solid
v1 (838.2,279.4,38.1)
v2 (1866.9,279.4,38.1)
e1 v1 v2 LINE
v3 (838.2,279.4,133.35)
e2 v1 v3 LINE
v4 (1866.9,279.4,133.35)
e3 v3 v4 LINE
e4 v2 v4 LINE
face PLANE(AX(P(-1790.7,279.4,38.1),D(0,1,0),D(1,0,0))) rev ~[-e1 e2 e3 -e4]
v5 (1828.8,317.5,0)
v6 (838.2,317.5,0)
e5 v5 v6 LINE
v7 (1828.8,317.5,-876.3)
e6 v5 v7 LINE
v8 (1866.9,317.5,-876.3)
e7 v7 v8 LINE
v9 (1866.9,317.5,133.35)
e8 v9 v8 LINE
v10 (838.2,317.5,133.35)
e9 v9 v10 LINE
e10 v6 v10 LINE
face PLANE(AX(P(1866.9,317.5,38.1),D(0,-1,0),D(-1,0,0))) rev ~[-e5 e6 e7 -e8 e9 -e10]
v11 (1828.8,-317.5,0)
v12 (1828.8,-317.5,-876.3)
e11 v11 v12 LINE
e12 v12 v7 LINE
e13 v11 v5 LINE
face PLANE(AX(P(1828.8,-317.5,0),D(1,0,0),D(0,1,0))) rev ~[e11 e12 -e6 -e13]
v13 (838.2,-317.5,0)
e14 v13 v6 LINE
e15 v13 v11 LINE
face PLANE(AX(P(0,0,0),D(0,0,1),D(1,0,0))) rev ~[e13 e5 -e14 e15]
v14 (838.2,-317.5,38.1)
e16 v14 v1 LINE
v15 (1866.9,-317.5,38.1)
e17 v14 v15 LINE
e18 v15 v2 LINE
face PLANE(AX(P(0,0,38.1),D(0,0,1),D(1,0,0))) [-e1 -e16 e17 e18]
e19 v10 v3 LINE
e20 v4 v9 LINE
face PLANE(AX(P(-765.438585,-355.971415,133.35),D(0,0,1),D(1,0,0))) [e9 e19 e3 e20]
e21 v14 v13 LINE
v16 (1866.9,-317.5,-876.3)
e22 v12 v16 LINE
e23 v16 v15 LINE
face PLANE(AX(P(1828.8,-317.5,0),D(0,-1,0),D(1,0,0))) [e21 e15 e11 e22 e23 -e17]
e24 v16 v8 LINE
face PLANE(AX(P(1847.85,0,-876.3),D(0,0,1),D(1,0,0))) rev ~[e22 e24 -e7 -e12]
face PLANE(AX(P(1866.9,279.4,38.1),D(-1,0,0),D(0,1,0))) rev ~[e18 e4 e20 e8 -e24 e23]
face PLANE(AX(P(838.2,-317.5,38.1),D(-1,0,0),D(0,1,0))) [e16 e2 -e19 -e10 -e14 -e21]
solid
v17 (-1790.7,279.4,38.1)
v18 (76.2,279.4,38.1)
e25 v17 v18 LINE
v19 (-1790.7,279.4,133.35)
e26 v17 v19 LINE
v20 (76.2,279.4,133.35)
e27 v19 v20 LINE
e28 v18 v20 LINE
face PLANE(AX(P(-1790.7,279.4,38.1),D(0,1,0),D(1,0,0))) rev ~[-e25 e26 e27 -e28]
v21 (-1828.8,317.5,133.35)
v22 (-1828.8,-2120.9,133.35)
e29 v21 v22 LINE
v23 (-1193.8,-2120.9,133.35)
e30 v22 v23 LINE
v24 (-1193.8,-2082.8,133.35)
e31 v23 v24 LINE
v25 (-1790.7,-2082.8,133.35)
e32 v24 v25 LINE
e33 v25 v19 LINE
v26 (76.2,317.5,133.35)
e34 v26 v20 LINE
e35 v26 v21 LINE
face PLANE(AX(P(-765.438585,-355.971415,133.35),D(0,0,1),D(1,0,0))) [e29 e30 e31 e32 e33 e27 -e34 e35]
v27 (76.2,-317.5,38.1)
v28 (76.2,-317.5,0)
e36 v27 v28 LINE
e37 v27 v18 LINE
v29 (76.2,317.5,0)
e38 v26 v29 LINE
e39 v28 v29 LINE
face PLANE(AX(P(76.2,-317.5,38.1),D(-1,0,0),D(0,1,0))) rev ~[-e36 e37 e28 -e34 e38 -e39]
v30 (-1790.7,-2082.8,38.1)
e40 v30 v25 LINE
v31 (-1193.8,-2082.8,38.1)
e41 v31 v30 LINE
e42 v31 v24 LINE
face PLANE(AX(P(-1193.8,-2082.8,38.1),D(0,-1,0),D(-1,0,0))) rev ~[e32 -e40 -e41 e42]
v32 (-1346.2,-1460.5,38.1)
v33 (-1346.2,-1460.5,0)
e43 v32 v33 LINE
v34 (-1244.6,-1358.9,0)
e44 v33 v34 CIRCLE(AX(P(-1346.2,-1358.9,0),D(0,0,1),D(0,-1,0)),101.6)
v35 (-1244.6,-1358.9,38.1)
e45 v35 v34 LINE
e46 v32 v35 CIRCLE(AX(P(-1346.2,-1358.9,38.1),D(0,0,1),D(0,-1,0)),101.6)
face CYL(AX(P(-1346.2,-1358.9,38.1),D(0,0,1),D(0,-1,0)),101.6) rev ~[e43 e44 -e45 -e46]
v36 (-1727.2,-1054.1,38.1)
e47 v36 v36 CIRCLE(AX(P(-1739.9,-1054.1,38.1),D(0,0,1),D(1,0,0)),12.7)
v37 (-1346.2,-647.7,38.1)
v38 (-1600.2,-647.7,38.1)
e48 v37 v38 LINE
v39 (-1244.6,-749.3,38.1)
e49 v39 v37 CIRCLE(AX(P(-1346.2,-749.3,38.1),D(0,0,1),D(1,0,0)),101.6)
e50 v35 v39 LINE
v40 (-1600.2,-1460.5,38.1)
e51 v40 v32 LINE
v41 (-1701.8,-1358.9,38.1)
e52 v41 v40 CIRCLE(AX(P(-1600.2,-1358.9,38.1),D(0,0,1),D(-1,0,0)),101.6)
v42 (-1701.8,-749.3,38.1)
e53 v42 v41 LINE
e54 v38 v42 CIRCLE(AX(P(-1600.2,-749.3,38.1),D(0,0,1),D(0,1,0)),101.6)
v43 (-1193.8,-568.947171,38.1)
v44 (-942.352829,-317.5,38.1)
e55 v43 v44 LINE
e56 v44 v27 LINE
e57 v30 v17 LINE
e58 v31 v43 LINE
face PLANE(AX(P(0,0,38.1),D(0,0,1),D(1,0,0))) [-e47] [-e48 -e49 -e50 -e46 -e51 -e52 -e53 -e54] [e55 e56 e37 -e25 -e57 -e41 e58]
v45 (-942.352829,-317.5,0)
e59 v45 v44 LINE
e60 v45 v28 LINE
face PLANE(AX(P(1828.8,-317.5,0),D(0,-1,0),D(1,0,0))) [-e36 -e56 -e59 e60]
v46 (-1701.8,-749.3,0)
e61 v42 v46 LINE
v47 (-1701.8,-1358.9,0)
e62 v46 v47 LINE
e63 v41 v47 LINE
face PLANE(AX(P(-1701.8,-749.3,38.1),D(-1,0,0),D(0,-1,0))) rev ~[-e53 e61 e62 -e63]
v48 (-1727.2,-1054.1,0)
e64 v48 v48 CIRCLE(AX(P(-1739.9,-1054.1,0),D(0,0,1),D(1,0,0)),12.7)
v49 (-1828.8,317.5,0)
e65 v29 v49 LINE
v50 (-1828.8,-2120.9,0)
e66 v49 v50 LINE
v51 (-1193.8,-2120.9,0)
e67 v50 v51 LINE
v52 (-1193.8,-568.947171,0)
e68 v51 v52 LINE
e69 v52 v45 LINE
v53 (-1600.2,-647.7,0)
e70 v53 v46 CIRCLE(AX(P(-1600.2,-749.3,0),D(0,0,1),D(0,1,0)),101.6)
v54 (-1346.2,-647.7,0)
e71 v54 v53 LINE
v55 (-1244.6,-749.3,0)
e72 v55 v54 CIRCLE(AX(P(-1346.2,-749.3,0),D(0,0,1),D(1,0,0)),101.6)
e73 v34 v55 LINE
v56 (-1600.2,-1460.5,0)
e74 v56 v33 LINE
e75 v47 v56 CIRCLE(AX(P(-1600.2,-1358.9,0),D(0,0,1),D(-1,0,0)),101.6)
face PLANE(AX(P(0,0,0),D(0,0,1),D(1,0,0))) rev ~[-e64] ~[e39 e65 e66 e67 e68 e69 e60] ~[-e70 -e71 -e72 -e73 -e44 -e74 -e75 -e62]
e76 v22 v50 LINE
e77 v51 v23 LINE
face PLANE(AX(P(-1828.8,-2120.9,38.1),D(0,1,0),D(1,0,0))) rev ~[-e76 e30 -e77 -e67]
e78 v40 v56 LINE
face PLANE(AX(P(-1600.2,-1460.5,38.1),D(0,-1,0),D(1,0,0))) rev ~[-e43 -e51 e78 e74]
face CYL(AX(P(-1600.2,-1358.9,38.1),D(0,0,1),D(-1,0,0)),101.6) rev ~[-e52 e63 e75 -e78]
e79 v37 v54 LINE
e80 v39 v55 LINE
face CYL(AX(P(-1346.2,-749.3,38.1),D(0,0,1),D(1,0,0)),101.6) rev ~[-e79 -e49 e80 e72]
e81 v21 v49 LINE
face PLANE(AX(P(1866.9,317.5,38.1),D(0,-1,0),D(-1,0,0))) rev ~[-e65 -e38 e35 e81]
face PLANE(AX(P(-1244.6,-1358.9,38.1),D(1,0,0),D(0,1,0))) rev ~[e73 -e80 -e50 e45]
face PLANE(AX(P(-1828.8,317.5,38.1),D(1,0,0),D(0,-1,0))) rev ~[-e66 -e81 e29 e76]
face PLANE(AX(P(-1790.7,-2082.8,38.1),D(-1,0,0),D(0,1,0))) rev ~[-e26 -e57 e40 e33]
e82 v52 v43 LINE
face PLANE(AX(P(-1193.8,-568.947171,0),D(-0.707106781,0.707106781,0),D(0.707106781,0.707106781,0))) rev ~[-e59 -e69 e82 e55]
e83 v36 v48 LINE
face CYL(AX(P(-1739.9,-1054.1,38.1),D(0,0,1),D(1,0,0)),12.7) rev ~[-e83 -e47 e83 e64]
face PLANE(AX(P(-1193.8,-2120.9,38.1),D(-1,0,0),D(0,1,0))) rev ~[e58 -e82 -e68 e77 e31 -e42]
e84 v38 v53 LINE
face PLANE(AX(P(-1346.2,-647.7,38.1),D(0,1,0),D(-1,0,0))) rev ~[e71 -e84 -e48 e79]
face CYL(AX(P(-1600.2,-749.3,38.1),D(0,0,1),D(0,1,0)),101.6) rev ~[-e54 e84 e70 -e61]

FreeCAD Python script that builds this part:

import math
import FreeCAD as App
import Part
import Sketcher
Q = App.Units.Quantity


def add_polygon(sketch, points):
    """Adds a closed chain of lines whose ends are joined by coincident constraints."""
    first, n = sketch.GeometryCount, len(points)
    for a, b in zip(points, points[1:] + points[:1]):
        sketch.addGeometry(Part.LineSegment(App.Vector(*a, 0), App.Vector(*b, 0)), False)
    for i in range(n):
        sketch.addConstraint(Sketcher.Constraint("Coincident", first + i, 2, first + (i + 1) % n, 1))

doc = App.newDocument("Part")
body = doc.addObject("PartDesign::Body", "Body")
body.AllowCompound = True

# Sketch on XY plane
sketch1 = body.newObject("Sketcher::SketchObject", "Sketch")
sketch1.AttachmentSupport = (doc.getObject("XY_Plane"), [""])
sketch1.MapMode = "FlatFace"
add_polygon(sketch1, [(-1829, 318), (-1829, -2121), (-1194, -2121), (-1194, -569), (-942, -318), (1867, -318), (1867, 318)])  # lines 0-6
sketch1.addConstraint([
    Sketcher.Constraint("Vertical", 0),
    Sketcher.Constraint("Horizontal", 1),
    Sketcher.Constraint("Vertical", 2),
    Sketcher.Constraint("Horizontal", 4),
    Sketcher.Constraint("Vertical", 5),
    Sketcher.Constraint("Horizontal", 6),
    Sketcher.Constraint("Equal", 1, 5),
    Sketcher.Constraint("DistanceX", 1, 1, 1, 2, Q("25 in")),
    Sketcher.Constraint("DistanceY", 0, 2, 0, 1, Q("96 in")),
    Sketcher.Constraint("Distance", 3, Q("14 in")),
    Sketcher.Constraint("DistanceX", 6, 2, 6, 1, Q("145.5 in")),
    Sketcher.Constraint("DistanceX", 0, 2, -1, 1, Q("72 in")),
    Sketcher.Constraint("Angle", 3, Q("45 deg")),
    Sketcher.Constraint("DistanceY", 0, 2, -1, 1, Q("83.5 in")),
])
pad1 = body.newObject("PartDesign::Pad", "Pad")
pad1.Profile = sketch1
pad1.Length = Q("1.5 in")

# Sketch on XY plane
sketch2 = body.newObject("Sketcher::SketchObject", "Sketch001")
sketch2.AttachmentSupport = (doc.getObject("XY_Plane"), [""])
sketch2.MapMode = "FlatFace"
add_polygon(sketch2, [(1829, 318), (1829, -318), (1867, -318), (1867, 318)])  # lines 0-3
sketch2.addConstraint([
    Sketcher.Constraint("Vertical", 0),
    Sketcher.Constraint("Horizontal", 1),
    Sketcher.Constraint("Vertical", 2),
    Sketcher.Constraint("Horizontal", 3),
    Sketcher.Constraint("DistanceY", 0, 2, 0, 1, Q("25 in")),
    Sketcher.Constraint("DistanceX", 1, 1, 1, 2, Q("1.5 in")),
    Sketcher.Constraint("DistanceX", -1, 1, 0, 2, Q("72 in")),
    Sketcher.Constraint("DistanceY", 0, 2, -1, 1, Q("12.5 in")),
])
pad2 = body.newObject("PartDesign::Pad", "Pad001")
pad2.Profile = sketch2
pad2.Length = Q("34.5 in")
pad2.Reversed = True

# Sketch on XY plane
sketch3 = body.newObject("Sketcher::SketchObject", "Sketch002")
sketch3.AttachmentSupport = (doc.getObject("XY_Plane"), [""])
sketch3.MapMode = "FlatFace"
sketch3.AttachmentOffset = App.Placement(App.Vector(0, 0, 1.5 * 25.4), App.Rotation())
add_polygon(sketch3, [(-1829, -2121), (-1194, -2121), (-1194, -2083), (-1791, -2083), (-1791, 279), (1867, 279), (1867, 318), (-1829, 318)])  # lines 0-7
sketch3.addConstraint([
    Sketcher.Constraint("Horizontal", 0),
    Sketcher.Constraint("Vertical", 1),
    Sketcher.Constraint("Horizontal", 2),
    Sketcher.Constraint("Vertical", 3),
    Sketcher.Constraint("Horizontal", 4),
    Sketcher.Constraint("Vertical", 5),
    Sketcher.Constraint("Horizontal", 6),
    Sketcher.Constraint("Vertical", 7),
    Sketcher.Constraint("Equal", 1, 5),
    Sketcher.Constraint("DistanceX", 0, 1, 0, 2, Q("25 in")),
    Sketcher.Constraint("DistanceX", 4, 1, 4, 2, Q("144 in")),
    Sketcher.Constraint("DistanceY", 3, 1, 3, 2, Q("93 in")),
    Sketcher.Constraint("DistanceY", 7, 2, 7, 1, Q("96 in")),
    Sketcher.Constraint("DistanceX", 2, 2, 2, 1, Q("23.5 in")),
    Sketcher.Constraint("DistanceX", 0, 2, -1, 1, Q("47 in")),
    Sketcher.Constraint("DistanceY", 1, 2, -1, 1, Q("82 in")),
])
pad3 = body.newObject("PartDesign::Pad", "Pad002")
pad3.Profile = sketch3
pad3.Length = Q("3.75 in")

# Sketch on XY plane
sketch4 = body.newObject("Sketcher::SketchObject", "Sketch003")
sketch4.AttachmentSupport = (doc.getObject("XY_Plane"), [""])
sketch4.MapMode = "FlatFace"
sketch4.AttachmentOffset = App.Placement(App.Vector(0, 0, 1.5 * 25.4), App.Rotation())
add_polygon(sketch4, [(76, 490), (76, -318), (838, -318), (838, 490)])  # lines 0-3
sketch4.addConstraint([
    Sketcher.Constraint("Vertical", 0),
    Sketcher.Constraint("Horizontal", 1),
    Sketcher.Constraint("Vertical", 2),
    Sketcher.Constraint("Horizontal", 3),
    Sketcher.Constraint("DistanceX", 1, 1, 1, 2, Q("30 in")),
    Sketcher.Constraint("DistanceX", -1, 1, 0, 2, Q("3 in")),
    Sketcher.Constraint("DistanceY", 0, 2, -1, 1, Q("12.5 in")),
    Sketcher.Constraint("DistanceY", 0, 2, 0, 1, 807.183926),
])
pocket1 = body.newObject("PartDesign::Pocket", "Pocket")
pocket1.Profile = sketch4
pocket1.Type = "ThroughAll"
pocket1.Midplane = True

# Sketch on XY plane
sketch5 = body.newObject("Sketcher::SketchObject", "Sketch004")
sketch5.AttachmentSupport = (doc.getObject("XY_Plane"), [""])
sketch5.MapMode = "FlatFace"
sketch5.AttachmentOffset = App.Placement(App.Vector(0, 0, 1.5 * 25.4), App.Rotation())
sketch5.addGeometry([
    Part.ArcOfCircle(Part.Circle(App.Vector(-1346, -749, 0), App.Vector(0, 0, 1), 102), math.radians(0), math.radians(90)),  # 0
    Part.LineSegment(App.Vector(-1346, -648, 0), App.Vector(-1600, -648, 0)),  # 1
    Part.ArcOfCircle(Part.Circle(App.Vector(-1600, -749, 0), App.Vector(0, 0, 1), 102), math.radians(90), math.radians(180)),  # 2
    Part.LineSegment(App.Vector(-1702, -749, 0), App.Vector(-1702, -1359, 0)),  # 3
    Part.ArcOfCircle(Part.Circle(App.Vector(-1600, -1359, 0), App.Vector(0, 0, 1), 102), math.radians(180), math.radians(270)),  # 4
    Part.LineSegment(App.Vector(-1600, -1460, 0), App.Vector(-1346, -1460, 0)),  # 5
    Part.ArcOfCircle(Part.Circle(App.Vector(-1346, -1359, 0), App.Vector(0, 0, 1), 102), math.radians(-90), math.radians(0)),  # 6
    Part.LineSegment(App.Vector(-1245, -1359, 0), App.Vector(-1245, -749, 0)),  # 7
    Part.Circle(App.Vector(-1740, -1054, 0), App.Vector(0, 0, 1), 13),  # 8
], False)
sketch5.addConstraint([
    Sketcher.Constraint("Tangent", 0, 2, 1, 1),
    Sketcher.Constraint("Tangent", 1, 2, 2, 1),
    Sketcher.Constraint("Tangent", 2, 2, 3, 1),
    Sketcher.Constraint("Tangent", 3, 2, 4, 1),
    Sketcher.Constraint("Tangent", 4, 2, 5, 1),
    Sketcher.Constraint("Tangent", 5, 2, 6, 1),
    Sketcher.Constraint("Tangent", 6, 2, 7, 1),
    Sketcher.Constraint("Tangent", 7, 2, 0, 1),
    Sketcher.Constraint("Horizontal", 1),
    Sketcher.Constraint("Vertical", 3),
    Sketcher.Constraint("Horizontal", 5),
    Sketcher.Constraint("Vertical", 7),
    Sketcher.Constraint("Equal", 0, 2),
    Sketcher.Constraint("Equal", 2, 4),
    Sketcher.Constraint("Equal", 4, 6),
    Sketcher.Constraint("Diameter", 8, Q("1 in")),
    Sketcher.Constraint("Radius", 0, Q("4 in")),
    Sketcher.Constraint("DistanceX", 1, 2, 1, 1, Q("10 in")),
    Sketcher.Constraint("DistanceY", 3, 2, 3, 1, Q("24 in")),
    Sketcher.Constraint("DistanceX", 0, 3, -1, 1, Q("53 in")),
    Sketcher.Constraint("DistanceY", 8, 3, 2, 3, Q("12 in")),
    Sketcher.Constraint("DistanceY", 0, 3, -1, 1, Q("29.5 in")),
    Sketcher.Constraint("DistanceX", 8, 3, -1, 1, Q("68.5 in")),
])
pocket2 = body.newObject("PartDesign::Pocket", "Pocket001")
pocket2.Profile = sketch5
pocket2.Length = Q("5 in")

doc.recompute()
